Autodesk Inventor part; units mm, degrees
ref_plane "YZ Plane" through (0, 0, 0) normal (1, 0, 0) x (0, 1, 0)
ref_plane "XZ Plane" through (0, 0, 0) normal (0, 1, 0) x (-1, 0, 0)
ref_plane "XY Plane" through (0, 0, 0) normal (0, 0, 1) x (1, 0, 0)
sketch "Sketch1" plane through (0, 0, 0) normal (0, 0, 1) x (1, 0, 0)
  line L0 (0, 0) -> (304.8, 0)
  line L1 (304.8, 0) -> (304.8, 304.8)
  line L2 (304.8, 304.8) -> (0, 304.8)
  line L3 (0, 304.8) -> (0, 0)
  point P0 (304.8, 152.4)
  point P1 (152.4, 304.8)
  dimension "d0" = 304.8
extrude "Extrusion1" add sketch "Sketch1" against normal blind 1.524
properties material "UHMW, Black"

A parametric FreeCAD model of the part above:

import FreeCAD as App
import Part
import Sketcher

V = App.Vector
Q = App.Units.Quantity

doc = App.newDocument("Part")
body = doc.addObject("PartDesign::Body", "Body")

sketch1 = body.newObject("Sketcher::SketchObject", "Sketch")
sketch1.AttachmentSupport = (doc.getObject("XY_Plane"), [""])
sketch1.MapMode = "FlatFace"
sketch1.addGeometry([
    Part.LineSegment(V(0, 305, 0), V(0, 0, 0)),
    Part.LineSegment(V(0, 0, 0), V(305, 0, 0)),
    Part.LineSegment(V(305, 0, 0), V(305, 305, 0)),
    Part.LineSegment(V(305, 305, 0), V(0, 305, 0)),
], False)
sketch1.addConstraint([
    Sketcher.Constraint("Coincident", 0, 2, 1, 1),
    Sketcher.Constraint("Coincident", 1, 2, 2, 1),
    Sketcher.Constraint("Coincident", 2, 2, 3, 1),
    Sketcher.Constraint("Coincident", 3, 2, 0, 1),
    Sketcher.Constraint("Vertical", 0),
    Sketcher.Constraint("Horizontal", 1),
    Sketcher.Constraint("Vertical", 2),
    Sketcher.Constraint("Horizontal", 3),
    Sketcher.Constraint("Coincident", 0, 2, -1, 1),
    Sketcher.Constraint("Equal", 3, 0),
    Sketcher.Constraint("DistanceX", 1, 1, 1, 2, Q("12 in")),
])
pad1 = body.newObject("PartDesign::Pad", "Pad")
pad1.Profile = sketch1
pad1.Length = Q("0.06 in")
pad1.Reversed = True

doc.recompute()
